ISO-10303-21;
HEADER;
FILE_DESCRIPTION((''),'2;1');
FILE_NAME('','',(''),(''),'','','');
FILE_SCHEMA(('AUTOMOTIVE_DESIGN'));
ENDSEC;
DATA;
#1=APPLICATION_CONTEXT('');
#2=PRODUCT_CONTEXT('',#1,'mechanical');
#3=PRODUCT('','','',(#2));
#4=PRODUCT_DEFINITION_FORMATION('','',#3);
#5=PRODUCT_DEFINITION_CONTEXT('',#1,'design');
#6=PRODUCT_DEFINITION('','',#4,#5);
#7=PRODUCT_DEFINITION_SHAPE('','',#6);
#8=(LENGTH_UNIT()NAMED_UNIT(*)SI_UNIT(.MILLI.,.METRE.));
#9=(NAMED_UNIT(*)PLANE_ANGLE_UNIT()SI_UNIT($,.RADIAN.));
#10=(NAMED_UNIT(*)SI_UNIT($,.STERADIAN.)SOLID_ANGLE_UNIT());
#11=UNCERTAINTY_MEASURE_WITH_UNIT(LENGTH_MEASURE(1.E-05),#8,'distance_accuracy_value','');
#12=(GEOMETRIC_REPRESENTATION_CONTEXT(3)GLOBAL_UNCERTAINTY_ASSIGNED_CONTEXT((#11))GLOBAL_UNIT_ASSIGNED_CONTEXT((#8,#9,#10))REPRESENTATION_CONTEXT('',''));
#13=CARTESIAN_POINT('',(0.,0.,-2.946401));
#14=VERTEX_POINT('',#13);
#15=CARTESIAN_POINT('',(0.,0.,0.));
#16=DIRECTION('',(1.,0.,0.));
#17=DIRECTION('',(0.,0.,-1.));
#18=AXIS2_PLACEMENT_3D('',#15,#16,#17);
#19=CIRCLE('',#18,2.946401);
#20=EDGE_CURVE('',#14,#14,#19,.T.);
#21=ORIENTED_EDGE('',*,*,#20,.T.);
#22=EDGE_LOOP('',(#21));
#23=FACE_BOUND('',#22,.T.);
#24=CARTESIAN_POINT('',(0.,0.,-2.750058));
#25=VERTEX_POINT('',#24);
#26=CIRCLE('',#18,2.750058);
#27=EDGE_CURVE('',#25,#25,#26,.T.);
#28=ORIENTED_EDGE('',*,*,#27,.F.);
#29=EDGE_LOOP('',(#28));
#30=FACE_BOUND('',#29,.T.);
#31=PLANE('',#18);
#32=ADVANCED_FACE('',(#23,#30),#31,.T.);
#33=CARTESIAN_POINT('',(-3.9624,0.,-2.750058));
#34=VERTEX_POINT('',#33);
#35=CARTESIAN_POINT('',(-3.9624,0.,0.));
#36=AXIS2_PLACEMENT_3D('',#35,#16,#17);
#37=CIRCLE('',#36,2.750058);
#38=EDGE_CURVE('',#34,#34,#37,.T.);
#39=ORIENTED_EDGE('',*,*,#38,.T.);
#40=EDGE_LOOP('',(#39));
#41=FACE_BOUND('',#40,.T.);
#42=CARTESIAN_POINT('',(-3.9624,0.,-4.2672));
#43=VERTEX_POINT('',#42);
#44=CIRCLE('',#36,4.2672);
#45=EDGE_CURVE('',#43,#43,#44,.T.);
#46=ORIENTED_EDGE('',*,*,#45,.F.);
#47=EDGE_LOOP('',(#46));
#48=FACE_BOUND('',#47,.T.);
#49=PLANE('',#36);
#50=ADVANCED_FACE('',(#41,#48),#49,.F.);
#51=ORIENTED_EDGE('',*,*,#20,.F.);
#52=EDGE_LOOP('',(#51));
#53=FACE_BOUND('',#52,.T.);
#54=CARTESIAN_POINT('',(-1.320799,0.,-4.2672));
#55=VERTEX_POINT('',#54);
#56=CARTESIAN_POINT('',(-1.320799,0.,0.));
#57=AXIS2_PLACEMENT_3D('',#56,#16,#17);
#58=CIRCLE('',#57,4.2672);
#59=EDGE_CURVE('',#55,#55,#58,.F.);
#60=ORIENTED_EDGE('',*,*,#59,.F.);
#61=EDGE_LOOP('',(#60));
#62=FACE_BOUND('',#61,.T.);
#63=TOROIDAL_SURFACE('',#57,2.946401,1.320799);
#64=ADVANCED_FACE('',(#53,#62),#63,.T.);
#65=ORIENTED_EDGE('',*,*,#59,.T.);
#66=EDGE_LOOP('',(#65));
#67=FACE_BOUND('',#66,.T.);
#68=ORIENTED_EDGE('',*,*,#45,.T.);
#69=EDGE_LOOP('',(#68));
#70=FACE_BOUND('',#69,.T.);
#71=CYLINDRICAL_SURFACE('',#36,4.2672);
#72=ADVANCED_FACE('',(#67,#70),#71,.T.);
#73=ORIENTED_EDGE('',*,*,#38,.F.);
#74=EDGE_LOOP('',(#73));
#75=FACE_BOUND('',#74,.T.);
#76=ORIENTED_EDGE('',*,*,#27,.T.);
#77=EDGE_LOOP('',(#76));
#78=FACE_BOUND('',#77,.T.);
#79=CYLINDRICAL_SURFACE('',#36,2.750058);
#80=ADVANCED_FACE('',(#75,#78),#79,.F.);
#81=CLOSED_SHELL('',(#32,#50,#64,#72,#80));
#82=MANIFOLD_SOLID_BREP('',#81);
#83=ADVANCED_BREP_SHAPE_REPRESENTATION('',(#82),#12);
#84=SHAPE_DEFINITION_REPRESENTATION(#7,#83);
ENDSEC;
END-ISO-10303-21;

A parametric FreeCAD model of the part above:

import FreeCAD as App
import Part
import Sketcher
Q = App.Units.Quantity


def edges_at(feature, points):
    """Names of the edges that pass closest to the given points."""
    edges = feature.Shape.Edges
    near = lambda p: min(range(len(edges)), key=lambda i: edges[i].distToShape(Part.Vertex(*p))[0])
    return sorted({f"Edge{near(p) + 1}" for p in points})

doc = App.newDocument("Part")
body = doc.addObject("PartDesign::Body", "Body")

sketch1 = body.newObject("Sketcher::SketchObject", "Sketch")
sketch1.AttachmentSupport = (doc.getObject("YZ_Plane"), [""])
sketch1.MapMode = "FlatFace"
sketch1.addGeometry(Part.Circle(App.Vector(0, 0, 0), App.Vector(0, 0, 1), 4.3), False)
sketch1.addGeometry(Part.Circle(App.Vector(0, 0, 0), App.Vector(0, 0, 1), 2.8), False)
sketch1.addConstraint(Sketcher.Constraint("Coincident", 0, 3, -1, 1))
sketch1.addConstraint(Sketcher.Constraint("Coincident", 1, 3, -1, 1))
sketch1.addConstraint(Sketcher.Constraint("Diameter", 0, Q("0.336 in")))
sketch1.addConstraint(Sketcher.Constraint("Diameter", 1, Q("5.500116 mm")))
pad1 = body.newObject("PartDesign::Pad", "Pad")
pad1.Profile = sketch1
pad1.Length = Q("0.156 in")
pad1.Reversed = True
doc.recompute()

fillet = body.newObject("PartDesign::Fillet", "Fillet")
fillet.Base = (pad1, edges_at(pad1, [(0, 0, 4.267)]))
fillet.Radius = Q("0.052 in")

doc.recompute()
